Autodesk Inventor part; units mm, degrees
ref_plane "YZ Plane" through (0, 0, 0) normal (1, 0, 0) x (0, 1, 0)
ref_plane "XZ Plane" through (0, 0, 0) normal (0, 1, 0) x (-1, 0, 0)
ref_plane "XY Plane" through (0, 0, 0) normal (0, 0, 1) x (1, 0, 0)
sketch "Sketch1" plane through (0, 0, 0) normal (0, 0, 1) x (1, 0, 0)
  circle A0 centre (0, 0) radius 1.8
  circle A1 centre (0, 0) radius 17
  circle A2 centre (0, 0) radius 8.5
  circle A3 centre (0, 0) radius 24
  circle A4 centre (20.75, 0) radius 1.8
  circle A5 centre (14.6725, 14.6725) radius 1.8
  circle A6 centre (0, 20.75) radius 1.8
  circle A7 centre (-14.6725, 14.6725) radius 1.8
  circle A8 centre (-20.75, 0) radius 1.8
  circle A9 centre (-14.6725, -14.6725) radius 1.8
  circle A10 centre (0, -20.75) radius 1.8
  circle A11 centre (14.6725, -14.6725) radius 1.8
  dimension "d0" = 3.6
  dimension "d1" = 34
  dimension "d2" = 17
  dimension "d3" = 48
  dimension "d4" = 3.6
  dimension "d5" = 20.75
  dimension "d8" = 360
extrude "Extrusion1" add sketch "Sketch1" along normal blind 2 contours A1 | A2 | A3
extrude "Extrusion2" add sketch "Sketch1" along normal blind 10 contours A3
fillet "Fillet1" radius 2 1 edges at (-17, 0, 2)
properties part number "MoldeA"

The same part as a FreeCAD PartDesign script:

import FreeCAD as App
import Part
import Sketcher

V = App.Vector


def edges_at(feature, points):
    """Names of the edges that pass closest to the given points."""
    edges = feature.Shape.Edges
    near = lambda p: min(range(len(edges)), key=lambda i: edges[i].distToShape(Part.Vertex(*p))[0])
    return sorted({f"Edge{near(p) + 1}" for p in points})

doc = App.newDocument("Part")
params = doc.addObject("Spreadsheet::Sheet", "Params")
for row, (alias, value) in enumerate([
    ("sketch1_diameter", "48 mm"),
    ("sketch1_diameter2", "3.6 mm"),
    ("pad1_length", "2 mm"),
    ("sketch2_diameter", "48 mm"),
    ("sketch2_diameter2", "34 mm"),
    ("sketch2_diameter3", "3.6 mm"),
    ("pad2_length", "10 mm"),
    ("fillet_radius", "2 mm"),
], start=1):
    params.set(f"A{row}", alias)
    params.set(f"B{row}", "=" + value)
    params.setAlias(f"B{row}", alias)

body = doc.addObject("PartDesign::Body", "Body")

# Sketch on XY plane
sketch1 = body.newObject("Sketcher::SketchObject", "Sketch")
sketch1.AttachmentSupport = (doc.getObject("XY_Plane"), [""])
sketch1.MapMode = "FlatFace"
sketch1.addGeometry(Part.Circle(V(0, 0, 0), V(0, 0, 1), 24), False)
sketch1.addGeometry(Part.Circle(V(-14.6725, -14.6725, 0), V(0, 0, 1), 1.8), False)
sketch1.addGeometry(Part.Circle(V(0, -20.75, 0), V(0, 0, 1), 1.8), False)
sketch1.addGeometry(Part.Circle(V(14.6725, -14.6725, 0), V(0, 0, 1), 1.8), False)
sketch1.addGeometry(Part.Circle(V(-20.75, 0, 0), V(0, 0, 1), 1.8), False)
sketch1.addGeometry(Part.Circle(V(-14.6725, 14.6725, 0), V(0, 0, 1), 1.8), False)
sketch1.addGeometry(Part.Circle(V(14.6725, 14.6725, 0), V(0, 0, 1), 1.8), False)
sketch1.addGeometry(Part.Circle(V(20.75, 0, 0), V(0, 0, 1), 1.8), False)
sketch1.addGeometry(Part.Circle(V(0, 20.75, 0), V(0, 0, 1), 1.8), False)
sketch1.addGeometry(Part.Circle(V(0, 0, 0), V(0, 0, 1), 1.8), False)
sketch1.addConstraint(Sketcher.Constraint("Coincident", 0, 3, -1, 1))
sketch1.addConstraint(Sketcher.Constraint("Coincident", 9, 3, -1, 1))
sketch1.addConstraint(Sketcher.Constraint("Equal", 1, 2))
sketch1.addConstraint(Sketcher.Constraint("Equal", 2, 3))
sketch1.addConstraint(Sketcher.Constraint("Equal", 3, 4))
sketch1.addConstraint(Sketcher.Constraint("Equal", 4, 5))
sketch1.addConstraint(Sketcher.Constraint("Equal", 5, 6))
sketch1.addConstraint(Sketcher.Constraint("Equal", 6, 7))
sketch1.addConstraint(Sketcher.Constraint("Equal", 7, 8))
sketch1.addConstraint(Sketcher.Constraint("Equal", 8, 9))
sketch1.addConstraint(Sketcher.Constraint("Symmetric", 3, 3, 5, 3, -1, 1))
sketch1.addConstraint(Sketcher.Constraint("Symmetric", 1, 3, 6, 3, -1, 1))
sketch1.addConstraint(Sketcher.Constraint("Symmetric", 4, 3, 7, 3, -1, 1))
sketch1.addConstraint(Sketcher.Constraint("Symmetric", 2, 3, 8, 3, -1, 1))
sketch1.addConstraint(Sketcher.Constraint("Symmetric", 1, 3, 3, 3, -2))
sketch1.addConstraint(Sketcher.Constraint("PointOnObject", 2, 3, -2))
sketch1.addConstraint(Sketcher.Constraint("PointOnObject", 4, 3, -1))
sketch1.addConstraint(Sketcher.Constraint("Diameter", 0, 48.0))
sketch1.addConstraint(Sketcher.Constraint("Diameter", 1, 3.6))
sketch1.addConstraint(Sketcher.Constraint("DistanceY", 2, 3, -1, 1, 20.75))
sketch1.addConstraint(Sketcher.Constraint("DistanceX", 4, 3, -1, 1, 20.75))
sketch1.addConstraint(Sketcher.Constraint("DistanceX", 1, 3, 3, 3, 29.345))
sketch1.addConstraint(Sketcher.Constraint("DistanceY", 1, 3, 5, 3, 29.345))
sketch1.setExpression("Constraints[17]", "Params.sketch1_diameter")
sketch1.setExpression("Constraints[18]", "Params.sketch1_diameter2")
pad1 = body.newObject("PartDesign::Pad", "Pad")
pad1.Profile = sketch1
pad1.setExpression("Length", "Params.pad1_length")

# Sketch on XY plane
sketch2 = body.newObject("Sketcher::SketchObject", "Sketch001")
sketch2.AttachmentSupport = (doc.getObject("XY_Plane"), [""])
sketch2.MapMode = "FlatFace"
sketch2.addGeometry(Part.Circle(V(0, 0, 0), V(0, 0, 1), 24), False)
sketch2.addGeometry(Part.Circle(V(-14.6725, -14.6725, 0), V(0, 0, 1), 1.8), False)
sketch2.addGeometry(Part.Circle(V(0, -20.75, 0), V(0, 0, 1), 1.8), False)
sketch2.addGeometry(Part.Circle(V(14.6725, -14.6725, 0), V(0, 0, 1), 1.8), False)
sketch2.addGeometry(Part.Circle(V(-20.75, 0, 0), V(0, 0, 1), 1.8), False)
sketch2.addGeometry(Part.Circle(V(-14.6725, 14.6725, 0), V(0, 0, 1), 1.8), False)
sketch2.addGeometry(Part.Circle(V(0, 0, 0), V(0, 0, 1), 17), False)
sketch2.addGeometry(Part.Circle(V(20.75, 0, 0), V(0, 0, 1), 1.8), False)
sketch2.addGeometry(Part.Circle(V(0, 20.75, 0), V(0, 0, 1), 1.8), False)
sketch2.addGeometry(Part.Circle(V(14.6725, 14.6725, 0), V(0, 0, 1), 1.8), False)
sketch2.addConstraint(Sketcher.Constraint("Coincident", 0, 3, -1, 1))
sketch2.addConstraint(Sketcher.Constraint("Coincident", 6, 3, -1, 1))
sketch2.addConstraint(Sketcher.Constraint("Equal", 1, 2))
sketch2.addConstraint(Sketcher.Constraint("Equal", 2, 3))
sketch2.addConstraint(Sketcher.Constraint("Equal", 3, 4))
sketch2.addConstraint(Sketcher.Constraint("Equal", 4, 5))
sketch2.addConstraint(Sketcher.Constraint("Equal", 5, 7))
sketch2.addConstraint(Sketcher.Constraint("Equal", 7, 8))
sketch2.addConstraint(Sketcher.Constraint("Equal", 8, 9))
sketch2.addConstraint(Sketcher.Constraint("Symmetric", 3, 3, 5, 3, -1, 1))
sketch2.addConstraint(Sketcher.Constraint("Symmetric", 4, 3, 7, 3, -1, 1))
sketch2.addConstraint(Sketcher.Constraint("Symmetric", 2, 3, 8, 3, -1, 1))
sketch2.addConstraint(Sketcher.Constraint("Symmetric", 1, 3, 9, 3, -1, 1))
sketch2.addConstraint(Sketcher.Constraint("Symmetric", 1, 3, 3, 3, -2))
sketch2.addConstraint(Sketcher.Constraint("PointOnObject", 2, 3, -2))
sketch2.addConstraint(Sketcher.Constraint("PointOnObject", 4, 3, -1))
sketch2.addConstraint(Sketcher.Constraint("Diameter", 0, 48.0))
sketch2.addConstraint(Sketcher.Constraint("Diameter", 6, 34.0))
sketch2.addConstraint(Sketcher.Constraint("Diameter", 1, 3.6))
sketch2.addConstraint(Sketcher.Constraint("DistanceY", 2, 3, -1, 1, 20.75))
sketch2.addConstraint(Sketcher.Constraint("DistanceX", 4, 3, -1, 1, 20.75))
sketch2.addConstraint(Sketcher.Constraint("DistanceX", 1, 3, 3, 3, 29.345))
sketch2.addConstraint(Sketcher.Constraint("DistanceY", 1, 3, 5, 3, 29.345))
sketch2.setExpression("Constraints[16]", "Params.sketch2_diameter")
sketch2.setExpression("Constraints[17]", "Params.sketch2_diameter2")
sketch2.setExpression("Constraints[18]", "Params.sketch2_diameter3")
pad2 = body.newObject("PartDesign::Pad", "Pad001")
pad2.Profile = sketch2
pad2.setExpression("Length", "Params.pad2_length")
doc.recompute()

fillet = body.newObject("PartDesign::Fillet", "Fillet")
fillet.Base = (pad2, edges_at(pad2, [(-17, 0, 2)]))
fillet.setExpression("Radius", "Params.fillet_radius")

doc.recompute()
